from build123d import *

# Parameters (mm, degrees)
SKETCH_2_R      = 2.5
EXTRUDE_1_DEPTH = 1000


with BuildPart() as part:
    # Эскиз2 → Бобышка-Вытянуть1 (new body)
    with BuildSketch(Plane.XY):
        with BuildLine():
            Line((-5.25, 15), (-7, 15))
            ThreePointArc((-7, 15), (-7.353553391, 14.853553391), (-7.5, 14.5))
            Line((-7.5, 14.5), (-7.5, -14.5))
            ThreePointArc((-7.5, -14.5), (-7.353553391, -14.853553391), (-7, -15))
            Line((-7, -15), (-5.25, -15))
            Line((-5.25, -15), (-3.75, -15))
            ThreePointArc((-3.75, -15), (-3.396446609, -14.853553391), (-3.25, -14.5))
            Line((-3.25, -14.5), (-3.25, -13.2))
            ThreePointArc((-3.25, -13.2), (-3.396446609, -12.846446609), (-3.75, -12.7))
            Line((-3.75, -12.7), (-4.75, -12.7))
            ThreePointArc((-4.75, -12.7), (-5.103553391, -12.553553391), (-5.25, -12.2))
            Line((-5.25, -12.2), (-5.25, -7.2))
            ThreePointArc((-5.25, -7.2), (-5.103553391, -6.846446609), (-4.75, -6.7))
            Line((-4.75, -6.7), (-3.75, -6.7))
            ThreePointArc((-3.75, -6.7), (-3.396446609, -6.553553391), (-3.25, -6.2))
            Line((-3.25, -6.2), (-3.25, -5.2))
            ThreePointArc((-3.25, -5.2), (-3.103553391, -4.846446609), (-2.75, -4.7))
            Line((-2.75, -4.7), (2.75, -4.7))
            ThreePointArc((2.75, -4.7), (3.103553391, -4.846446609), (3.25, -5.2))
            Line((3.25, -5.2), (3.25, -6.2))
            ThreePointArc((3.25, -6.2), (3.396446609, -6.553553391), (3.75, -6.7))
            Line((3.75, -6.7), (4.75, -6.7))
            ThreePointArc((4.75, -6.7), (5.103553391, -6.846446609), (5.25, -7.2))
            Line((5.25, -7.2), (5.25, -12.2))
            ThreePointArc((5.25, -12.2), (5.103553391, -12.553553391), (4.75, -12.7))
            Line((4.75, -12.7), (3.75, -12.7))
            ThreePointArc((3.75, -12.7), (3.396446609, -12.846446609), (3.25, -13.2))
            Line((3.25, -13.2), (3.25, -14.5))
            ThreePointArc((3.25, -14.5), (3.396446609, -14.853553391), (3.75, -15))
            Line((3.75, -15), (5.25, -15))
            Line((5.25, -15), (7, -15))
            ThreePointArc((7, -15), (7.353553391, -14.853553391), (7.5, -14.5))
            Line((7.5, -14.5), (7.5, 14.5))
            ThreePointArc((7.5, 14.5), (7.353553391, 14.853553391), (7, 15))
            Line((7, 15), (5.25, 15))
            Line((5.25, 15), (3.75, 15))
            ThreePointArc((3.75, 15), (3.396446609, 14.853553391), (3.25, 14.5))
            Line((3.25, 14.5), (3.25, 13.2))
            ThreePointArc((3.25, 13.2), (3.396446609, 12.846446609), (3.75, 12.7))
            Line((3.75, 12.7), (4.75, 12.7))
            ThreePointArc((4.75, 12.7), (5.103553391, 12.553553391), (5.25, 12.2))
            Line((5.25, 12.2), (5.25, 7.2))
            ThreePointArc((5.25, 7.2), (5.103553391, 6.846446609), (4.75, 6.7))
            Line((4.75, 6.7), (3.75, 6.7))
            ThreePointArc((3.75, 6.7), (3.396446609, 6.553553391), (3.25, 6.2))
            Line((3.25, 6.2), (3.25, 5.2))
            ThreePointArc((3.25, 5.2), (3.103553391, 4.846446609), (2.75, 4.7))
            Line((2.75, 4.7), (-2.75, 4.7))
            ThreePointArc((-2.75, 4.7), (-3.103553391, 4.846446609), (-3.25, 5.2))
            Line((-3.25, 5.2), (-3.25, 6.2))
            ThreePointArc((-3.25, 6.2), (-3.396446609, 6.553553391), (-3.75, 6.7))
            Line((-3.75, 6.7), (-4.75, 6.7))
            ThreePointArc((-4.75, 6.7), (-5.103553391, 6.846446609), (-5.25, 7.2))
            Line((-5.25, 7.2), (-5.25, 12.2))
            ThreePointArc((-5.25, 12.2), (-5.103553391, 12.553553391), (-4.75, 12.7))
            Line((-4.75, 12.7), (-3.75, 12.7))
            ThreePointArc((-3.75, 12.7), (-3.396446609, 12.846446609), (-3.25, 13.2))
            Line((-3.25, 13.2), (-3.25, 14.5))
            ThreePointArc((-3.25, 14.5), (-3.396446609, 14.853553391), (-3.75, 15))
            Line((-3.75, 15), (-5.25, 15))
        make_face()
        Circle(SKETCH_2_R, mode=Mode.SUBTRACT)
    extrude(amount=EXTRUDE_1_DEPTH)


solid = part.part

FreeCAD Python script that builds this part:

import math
import FreeCAD as App
import Part
import Sketcher

V = App.Vector

doc = App.newDocument("Part")
body = doc.addObject("PartDesign::Body", "Body")

# Sketch on XY plane
sketch1 = body.newObject("Sketcher::SketchObject", "Sketch")
sketch1.AttachmentSupport = (doc.getObject("XY_Plane"), [""])
sketch1.MapMode = "FlatFace"
sketch1.addGeometry([
    Part.ArcOfCircle(Part.Circle(V(-7, 14.5, 0), V(0, 0, 1), 0.5), math.radians(90), math.radians(180)),  # 0
    Part.LineSegment(V(-7.5, 14.5, 0), V(-7.5, -14.5, 0)),  # 1
    Part.ArcOfCircle(Part.Circle(V(-7, -14.5, 0), V(0, 0, 1), 0.5), math.radians(180), math.radians(270)),  # 2
    Part.LineSegment(V(-7, -15, 0), V(-3.75, -15, 0)),  # 3
    Part.ArcOfCircle(Part.Circle(V(-3.75, -14.5, 0), V(0, 0, 1), 0.5), math.radians(-90), math.radians(0)),  # 4
    Part.LineSegment(V(-3.25, -14.5, 0), V(-3.25, -13.2, 0)),  # 5
    Part.ArcOfCircle(Part.Circle(V(-3.75, -13.2, 0), V(0, 0, 1), 0.5), math.radians(0), math.radians(90)),  # 6
    Part.LineSegment(V(-3.75, -12.7, 0), V(-4.75, -12.7, 0)),  # 7
    Part.ArcOfCircle(Part.Circle(V(-4.75, -12.2, 0), V(0, 0, 1), 0.5), math.radians(180), math.radians(270)),  # 8
    Part.LineSegment(V(-5.25, -12.2, 0), V(-5.25, -7.2, 0)),  # 9
    Part.ArcOfCircle(Part.Circle(V(-4.75, -7.2, 0), V(0, 0, 1), 0.5), math.radians(90), math.radians(180)),  # 10
    Part.LineSegment(V(-4.75, -6.7, 0), V(-3.75, -6.7, 0)),  # 11
    Part.ArcOfCircle(Part.Circle(V(-3.75, -6.2, 0), V(0, 0, 1), 0.5), math.radians(-90), math.radians(0)),  # 12
    Part.LineSegment(V(-3.25, -6.2, 0), V(-3.25, -5.2, 0)),  # 13
    Part.ArcOfCircle(Part.Circle(V(-2.75, -5.2, 0), V(0, 0, 1), 0.5), math.radians(90), math.radians(180)),  # 14
    Part.LineSegment(V(-2.75, -4.7, 0), V(2.75, -4.7, 0)),  # 15
    Part.ArcOfCircle(Part.Circle(V(2.75, -5.2, 0), V(0, 0, 1), 0.5), math.radians(0), math.radians(90)),  # 16
    Part.LineSegment(V(3.25, -5.2, 0), V(3.25, -6.2, 0)),  # 17
    Part.ArcOfCircle(Part.Circle(V(3.75, -6.2, 0), V(0, 0, 1), 0.5), math.radians(180), math.radians(270)),  # 18
    Part.LineSegment(V(3.75, -6.7, 0), V(4.75, -6.7, 0)),  # 19
    Part.ArcOfCircle(Part.Circle(V(4.75, -7.2, 0), V(0, 0, 1), 0.5), math.radians(0), math.radians(90)),  # 20
    Part.LineSegment(V(5.25, -7.2, 0), V(5.25, -12.2, 0)),  # 21
    Part.ArcOfCircle(Part.Circle(V(4.75, -12.2, 0), V(0, 0, 1), 0.5), math.radians(-90), math.radians(0)),  # 22
    Part.LineSegment(V(4.75, -12.7, 0), V(3.75, -12.7, 0)),  # 23
    Part.ArcOfCircle(Part.Circle(V(3.75, -13.2, 0), V(0, 0, 1), 0.5), math.radians(90), math.radians(180)),  # 24
    Part.LineSegment(V(3.25, -13.2, 0), V(3.25, -14.5, 0)),  # 25
    Part.ArcOfCircle(Part.Circle(V(3.75, -14.5, 0), V(0, 0, 1), 0.5), math.radians(180), math.radians(270)),  # 26
    Part.LineSegment(V(3.75, -15, 0), V(7, -15, 0)),  # 27
    Part.ArcOfCircle(Part.Circle(V(7, -14.5, 0), V(0, 0, 1), 0.5), math.radians(-90), math.radians(0)),  # 28
    Part.LineSegment(V(7.5, -14.5, 0), V(7.5, 14.5, 0)),  # 29
    Part.ArcOfCircle(Part.Circle(V(7, 14.5, 0), V(0, 0, 1), 0.5), math.radians(0), math.radians(90)),  # 30
    Part.LineSegment(V(7, 15, 0), V(3.75, 15, 0)),  # 31
    Part.ArcOfCircle(Part.Circle(V(3.75, 14.5, 0), V(0, 0, 1), 0.5), math.radians(90), math.radians(180)),  # 32
    Part.LineSegment(V(3.25, 14.5, 0), V(3.25, 13.2, 0)),  # 33
    Part.ArcOfCircle(Part.Circle(V(3.75, 13.2, 0), V(0, 0, 1), 0.5), math.radians(180), math.radians(270)),  # 34
    Part.LineSegment(V(3.75, 12.7, 0), V(4.75, 12.7, 0)),  # 35
    Part.ArcOfCircle(Part.Circle(V(4.75, 12.2, 0), V(0, 0, 1), 0.5), math.radians(0), math.radians(90)),  # 36
    Part.LineSegment(V(5.25, 12.2, 0), V(5.25, 7.2, 0)),  # 37
    Part.ArcOfCircle(Part.Circle(V(4.75, 7.2, 0), V(0, 0, 1), 0.5), math.radians(-90), math.radians(0)),  # 38
    Part.LineSegment(V(4.75, 6.7, 0), V(3.75, 6.7, 0)),  # 39
    Part.ArcOfCircle(Part.Circle(V(3.75, 6.2, 0), V(0, 0, 1), 0.5), math.radians(90), math.radians(180)),  # 40
    Part.LineSegment(V(3.25, 6.2, 0), V(3.25, 5.2, 0)),  # 41
    Part.ArcOfCircle(Part.Circle(V(2.75, 5.2, 0), V(0, 0, 1), 0.5), math.radians(-90), math.radians(0)),  # 42
    Part.LineSegment(V(2.75, 4.7, 0), V(-2.75, 4.7, 0)),  # 43
    Part.ArcOfCircle(Part.Circle(V(-2.75, 5.2, 0), V(0, 0, 1), 0.5), math.radians(180), math.radians(270)),  # 44
    Part.LineSegment(V(-3.25, 5.2, 0), V(-3.25, 6.2, 0)),  # 45
    Part.ArcOfCircle(Part.Circle(V(-3.75, 6.2, 0), V(0, 0, 1), 0.5), math.radians(0), math.radians(90)),  # 46
    Part.LineSegment(V(-3.75, 6.7, 0), V(-4.75, 6.7, 0)),  # 47
    Part.ArcOfCircle(Part.Circle(V(-4.75, 7.2, 0), V(0, 0, 1), 0.5), math.radians(180), math.radians(270)),  # 48
    Part.LineSegment(V(-5.25, 7.2, 0), V(-5.25, 12.2, 0)),  # 49
    Part.ArcOfCircle(Part.Circle(V(-4.75, 12.2, 0), V(0, 0, 1), 0.5), math.radians(90), math.radians(180)),  # 50
    Part.LineSegment(V(-4.75, 12.7, 0), V(-3.75, 12.7, 0)),  # 51
    Part.ArcOfCircle(Part.Circle(V(-3.75, 13.2, 0), V(0, 0, 1), 0.5), math.radians(-90), math.radians(0)),  # 52
    Part.LineSegment(V(-3.25, 13.2, 0), V(-3.25, 14.5, 0)),  # 53
    Part.ArcOfCircle(Part.Circle(V(-3.75, 14.5, 0), V(0, 0, 1), 0.5), math.radians(0), math.radians(90)),  # 54
    Part.LineSegment(V(-3.75, 15, 0), V(-7, 15, 0)),  # 55
    Part.Circle(V(0, 0, 0), V(0, 0, 1), 2.5),  # 56
], False)
sketch1.addConstraint([
    Sketcher.Constraint("Tangent", 0, 2, 1, 1),
    Sketcher.Constraint("Tangent", 1, 2, 2, 1),
    Sketcher.Constraint("Tangent", 2, 2, 3, 1),
    Sketcher.Constraint("Tangent", 3, 2, 4, 1),
    Sketcher.Constraint("Tangent", 4, 2, 5, 1),
    Sketcher.Constraint("Tangent", 5, 2, 6, 1),
    Sketcher.Constraint("Tangent", 6, 2, 7, 1),
    Sketcher.Constraint("Tangent", 7, 2, 8, 2),
    Sketcher.Constraint("Tangent", 8, 1, 9, 1),
    Sketcher.Constraint("Tangent", 9, 2, 10, 2),
    Sketcher.Constraint("Tangent", 10, 1, 11, 1),
    Sketcher.Constraint("Tangent", 11, 2, 12, 1),
    Sketcher.Constraint("Tangent", 12, 2, 13, 1),
    Sketcher.Constraint("Tangent", 13, 2, 14, 2),
    Sketcher.Constraint("Tangent", 14, 1, 15, 1),
    Sketcher.Constraint("Tangent", 15, 2, 16, 2),
    Sketcher.Constraint("Tangent", 16, 1, 17, 1),
    Sketcher.Constraint("Tangent", 17, 2, 18, 1),
    Sketcher.Constraint("Tangent", 18, 2, 19, 1),
    Sketcher.Constraint("Tangent", 19, 2, 20, 2),
    Sketcher.Constraint("Tangent", 20, 1, 21, 1),
    Sketcher.Constraint("Tangent", 21, 2, 22, 2),
    Sketcher.Constraint("Tangent", 22, 1, 23, 1),
    Sketcher.Constraint("Tangent", 23, 2, 24, 1),
    Sketcher.Constraint("Tangent", 24, 2, 25, 1),
    Sketcher.Constraint("Tangent", 25, 2, 26, 1),
    Sketcher.Constraint("Tangent", 26, 2, 27, 1),
    Sketcher.Constraint("Tangent", 27, 2, 28, 1),
    Sketcher.Constraint("Tangent", 28, 2, 29, 1),
    Sketcher.Constraint("Tangent", 29, 2, 30, 1),
    Sketcher.Constraint("Tangent", 30, 2, 31, 1),
    Sketcher.Constraint("Tangent", 31, 2, 32, 1),
    Sketcher.Constraint("Tangent", 32, 2, 33, 1),
    Sketcher.Constraint("Tangent", 33, 2, 34, 1),
    Sketcher.Constraint("Tangent", 34, 2, 35, 1),
    Sketcher.Constraint("Tangent", 35, 2, 36, 2),
    Sketcher.Constraint("Tangent", 36, 1, 37, 1),
    Sketcher.Constraint("Tangent", 37, 2, 38, 2),
    Sketcher.Constraint("Tangent", 38, 1, 39, 1),
    Sketcher.Constraint("Tangent", 39, 2, 40, 1),
    Sketcher.Constraint("Tangent", 40, 2, 41, 1),
    Sketcher.Constraint("Tangent", 41, 2, 42, 2),
    Sketcher.Constraint("Tangent", 42, 1, 43, 1),
    Sketcher.Constraint("Tangent", 43, 2, 44, 2),
    Sketcher.Constraint("Tangent", 44, 1, 45, 1),
    Sketcher.Constraint("Tangent", 45, 2, 46, 1),
    Sketcher.Constraint("Tangent", 46, 2, 47, 1),
    Sketcher.Constraint("Tangent", 47, 2, 48, 2),
    Sketcher.Constraint("Tangent", 48, 1, 49, 1),
    Sketcher.Constraint("Tangent", 49, 2, 50, 2),
    Sketcher.Constraint("Tangent", 50, 1, 51, 1),
    Sketcher.Constraint("Tangent", 51, 2, 52, 1),
    Sketcher.Constraint("Tangent", 52, 2, 53, 1),
    Sketcher.Constraint("Tangent", 53, 2, 54, 1),
    Sketcher.Constraint("Tangent", 54, 2, 55, 1),
    Sketcher.Constraint("Tangent", 55, 2, 0, 1),
    Sketcher.Constraint("Vertical", 1),
    Sketcher.Constraint("Horizontal", 3),
    Sketcher.Constraint("Vertical", 5),
    Sketcher.Constraint("Horizontal", 7),
    Sketcher.Constraint("Vertical", 9),
    Sketcher.Constraint("Horizontal", 11),
    Sketcher.Constraint("Vertical", 13),
    Sketcher.Constraint("Horizontal", 15),
    Sketcher.Constraint("Vertical", 17),
    Sketcher.Constraint("Horizontal", 19),
    Sketcher.Constraint("Vertical", 21),
    Sketcher.Constraint("Horizontal", 23),
    Sketcher.Constraint("Vertical", 25),
    Sketcher.Constraint("Horizontal", 27),
    Sketcher.Constraint("Vertical", 29),
    Sketcher.Constraint("Horizontal", 31),
    Sketcher.Constraint("Vertical", 33),
    Sketcher.Constraint("Horizontal", 35),
    Sketcher.Constraint("Vertical", 37),
    Sketcher.Constraint("Horizontal", 39),
    Sketcher.Constraint("Vertical", 41),
    Sketcher.Constraint("Horizontal", 43),
    Sketcher.Constraint("Vertical", 45),
    Sketcher.Constraint("Horizontal", 47),
    Sketcher.Constraint("Vertical", 49),
    Sketcher.Constraint("Horizontal", 51),
    Sketcher.Constraint("Vertical", 53),
    Sketcher.Constraint("Horizontal", 55),
    Sketcher.Constraint("Coincident", 56, 3, -1, 1),
    Sketcher.Constraint("Equal", 0, 2),
    Sketcher.Constraint("Equal", 2, 4),
    Sketcher.Constraint("Equal", 4, 6),
    Sketcher.Constraint("Equal", 6, 8),
    Sketcher.Constraint("Equal", 8, 10),
    Sketcher.Constraint("Equal", 10, 12),
    Sketcher.Constraint("Equal", 12, 14),
    Sketcher.Constraint("Equal", 14, 16),
    Sketcher.Constraint("Equal", 16, 18),
    Sketcher.Constraint("Equal", 18, 20),
    Sketcher.Constraint("Equal", 20, 22),
    Sketcher.Constraint("Equal", 22, 24),
    Sketcher.Constraint("Equal", 24, 26),
    Sketcher.Constraint("Equal", 26, 28),
    Sketcher.Constraint("Equal", 28, 30),
    Sketcher.Constraint("Equal", 30, 32),
    Sketcher.Constraint("Equal", 32, 34),
    Sketcher.Constraint("Equal", 34, 36),
    Sketcher.Constraint("Equal", 36, 38),
    Sketcher.Constraint("Equal", 38, 40),
    Sketcher.Constraint("Equal", 40, 42),
    Sketcher.Constraint("Equal", 42, 44),
    Sketcher.Constraint("Equal", 44, 46),
    Sketcher.Constraint("Equal", 46, 48),
    Sketcher.Constraint("Equal", 48, 50),
    Sketcher.Constraint("Equal", 50, 52),
    Sketcher.Constraint("Equal", 52, 54),
    Sketcher.Constraint("Symmetric", 0, 3, 28, 3, -1, 1),
    Sketcher.Constraint("Symmetric", 4, 3, 32, 3, -1, 1),
    Sketcher.Constraint("Symmetric", 8, 3, 36, 3, -1, 1),
    Sketcher.Constraint("Symmetric", 12, 3, 40, 3, -1, 1),
    Sketcher.Constraint("Symmetric", 16, 3, 44, 3, -1, 1),
    Sketcher.Constraint("Symmetric", 20, 3, 48, 3, -1, 1),
    Sketcher.Constraint("Symmetric", 24, 3, 52, 3, -1, 1),
    Sketcher.Constraint("Symmetric", 12, 3, 18, 3, -2),
    Sketcher.Constraint("Symmetric", 8, 3, 22, 3, -2),
    Sketcher.Constraint("Symmetric", 4, 3, 26, 3, -2),
    Sketcher.Constraint("Vertical", 6, 3, 12, 3),
    Sketcher.Constraint("Equal", 51, 13),
    Sketcher.Constraint("Diameter", 56, 5.0),
    Sketcher.Constraint("Radius", 0, 0.5),
    Sketcher.Constraint("DistanceX", 7, 2, 7, 1, 1.0),
    Sketcher.Constraint("DistanceY", 1, 2, 1, 1, 29.0),
    Sketcher.Constraint("DistanceY", 9, 1, 9, 2, 5.0),
    Sketcher.Constraint("DistanceX", 15, 1, 15, 2, 5.5),
    Sketcher.Constraint("DistanceY", 5, 1, 5, 2, 1.3),
    Sketcher.Constraint("DistanceX", 0, 3, -1, 1, 7.0),
])
pad1 = body.newObject("PartDesign::Pad", "Pad")
pad1.Profile = sketch1
pad1.Length = 1000

doc.recompute()
